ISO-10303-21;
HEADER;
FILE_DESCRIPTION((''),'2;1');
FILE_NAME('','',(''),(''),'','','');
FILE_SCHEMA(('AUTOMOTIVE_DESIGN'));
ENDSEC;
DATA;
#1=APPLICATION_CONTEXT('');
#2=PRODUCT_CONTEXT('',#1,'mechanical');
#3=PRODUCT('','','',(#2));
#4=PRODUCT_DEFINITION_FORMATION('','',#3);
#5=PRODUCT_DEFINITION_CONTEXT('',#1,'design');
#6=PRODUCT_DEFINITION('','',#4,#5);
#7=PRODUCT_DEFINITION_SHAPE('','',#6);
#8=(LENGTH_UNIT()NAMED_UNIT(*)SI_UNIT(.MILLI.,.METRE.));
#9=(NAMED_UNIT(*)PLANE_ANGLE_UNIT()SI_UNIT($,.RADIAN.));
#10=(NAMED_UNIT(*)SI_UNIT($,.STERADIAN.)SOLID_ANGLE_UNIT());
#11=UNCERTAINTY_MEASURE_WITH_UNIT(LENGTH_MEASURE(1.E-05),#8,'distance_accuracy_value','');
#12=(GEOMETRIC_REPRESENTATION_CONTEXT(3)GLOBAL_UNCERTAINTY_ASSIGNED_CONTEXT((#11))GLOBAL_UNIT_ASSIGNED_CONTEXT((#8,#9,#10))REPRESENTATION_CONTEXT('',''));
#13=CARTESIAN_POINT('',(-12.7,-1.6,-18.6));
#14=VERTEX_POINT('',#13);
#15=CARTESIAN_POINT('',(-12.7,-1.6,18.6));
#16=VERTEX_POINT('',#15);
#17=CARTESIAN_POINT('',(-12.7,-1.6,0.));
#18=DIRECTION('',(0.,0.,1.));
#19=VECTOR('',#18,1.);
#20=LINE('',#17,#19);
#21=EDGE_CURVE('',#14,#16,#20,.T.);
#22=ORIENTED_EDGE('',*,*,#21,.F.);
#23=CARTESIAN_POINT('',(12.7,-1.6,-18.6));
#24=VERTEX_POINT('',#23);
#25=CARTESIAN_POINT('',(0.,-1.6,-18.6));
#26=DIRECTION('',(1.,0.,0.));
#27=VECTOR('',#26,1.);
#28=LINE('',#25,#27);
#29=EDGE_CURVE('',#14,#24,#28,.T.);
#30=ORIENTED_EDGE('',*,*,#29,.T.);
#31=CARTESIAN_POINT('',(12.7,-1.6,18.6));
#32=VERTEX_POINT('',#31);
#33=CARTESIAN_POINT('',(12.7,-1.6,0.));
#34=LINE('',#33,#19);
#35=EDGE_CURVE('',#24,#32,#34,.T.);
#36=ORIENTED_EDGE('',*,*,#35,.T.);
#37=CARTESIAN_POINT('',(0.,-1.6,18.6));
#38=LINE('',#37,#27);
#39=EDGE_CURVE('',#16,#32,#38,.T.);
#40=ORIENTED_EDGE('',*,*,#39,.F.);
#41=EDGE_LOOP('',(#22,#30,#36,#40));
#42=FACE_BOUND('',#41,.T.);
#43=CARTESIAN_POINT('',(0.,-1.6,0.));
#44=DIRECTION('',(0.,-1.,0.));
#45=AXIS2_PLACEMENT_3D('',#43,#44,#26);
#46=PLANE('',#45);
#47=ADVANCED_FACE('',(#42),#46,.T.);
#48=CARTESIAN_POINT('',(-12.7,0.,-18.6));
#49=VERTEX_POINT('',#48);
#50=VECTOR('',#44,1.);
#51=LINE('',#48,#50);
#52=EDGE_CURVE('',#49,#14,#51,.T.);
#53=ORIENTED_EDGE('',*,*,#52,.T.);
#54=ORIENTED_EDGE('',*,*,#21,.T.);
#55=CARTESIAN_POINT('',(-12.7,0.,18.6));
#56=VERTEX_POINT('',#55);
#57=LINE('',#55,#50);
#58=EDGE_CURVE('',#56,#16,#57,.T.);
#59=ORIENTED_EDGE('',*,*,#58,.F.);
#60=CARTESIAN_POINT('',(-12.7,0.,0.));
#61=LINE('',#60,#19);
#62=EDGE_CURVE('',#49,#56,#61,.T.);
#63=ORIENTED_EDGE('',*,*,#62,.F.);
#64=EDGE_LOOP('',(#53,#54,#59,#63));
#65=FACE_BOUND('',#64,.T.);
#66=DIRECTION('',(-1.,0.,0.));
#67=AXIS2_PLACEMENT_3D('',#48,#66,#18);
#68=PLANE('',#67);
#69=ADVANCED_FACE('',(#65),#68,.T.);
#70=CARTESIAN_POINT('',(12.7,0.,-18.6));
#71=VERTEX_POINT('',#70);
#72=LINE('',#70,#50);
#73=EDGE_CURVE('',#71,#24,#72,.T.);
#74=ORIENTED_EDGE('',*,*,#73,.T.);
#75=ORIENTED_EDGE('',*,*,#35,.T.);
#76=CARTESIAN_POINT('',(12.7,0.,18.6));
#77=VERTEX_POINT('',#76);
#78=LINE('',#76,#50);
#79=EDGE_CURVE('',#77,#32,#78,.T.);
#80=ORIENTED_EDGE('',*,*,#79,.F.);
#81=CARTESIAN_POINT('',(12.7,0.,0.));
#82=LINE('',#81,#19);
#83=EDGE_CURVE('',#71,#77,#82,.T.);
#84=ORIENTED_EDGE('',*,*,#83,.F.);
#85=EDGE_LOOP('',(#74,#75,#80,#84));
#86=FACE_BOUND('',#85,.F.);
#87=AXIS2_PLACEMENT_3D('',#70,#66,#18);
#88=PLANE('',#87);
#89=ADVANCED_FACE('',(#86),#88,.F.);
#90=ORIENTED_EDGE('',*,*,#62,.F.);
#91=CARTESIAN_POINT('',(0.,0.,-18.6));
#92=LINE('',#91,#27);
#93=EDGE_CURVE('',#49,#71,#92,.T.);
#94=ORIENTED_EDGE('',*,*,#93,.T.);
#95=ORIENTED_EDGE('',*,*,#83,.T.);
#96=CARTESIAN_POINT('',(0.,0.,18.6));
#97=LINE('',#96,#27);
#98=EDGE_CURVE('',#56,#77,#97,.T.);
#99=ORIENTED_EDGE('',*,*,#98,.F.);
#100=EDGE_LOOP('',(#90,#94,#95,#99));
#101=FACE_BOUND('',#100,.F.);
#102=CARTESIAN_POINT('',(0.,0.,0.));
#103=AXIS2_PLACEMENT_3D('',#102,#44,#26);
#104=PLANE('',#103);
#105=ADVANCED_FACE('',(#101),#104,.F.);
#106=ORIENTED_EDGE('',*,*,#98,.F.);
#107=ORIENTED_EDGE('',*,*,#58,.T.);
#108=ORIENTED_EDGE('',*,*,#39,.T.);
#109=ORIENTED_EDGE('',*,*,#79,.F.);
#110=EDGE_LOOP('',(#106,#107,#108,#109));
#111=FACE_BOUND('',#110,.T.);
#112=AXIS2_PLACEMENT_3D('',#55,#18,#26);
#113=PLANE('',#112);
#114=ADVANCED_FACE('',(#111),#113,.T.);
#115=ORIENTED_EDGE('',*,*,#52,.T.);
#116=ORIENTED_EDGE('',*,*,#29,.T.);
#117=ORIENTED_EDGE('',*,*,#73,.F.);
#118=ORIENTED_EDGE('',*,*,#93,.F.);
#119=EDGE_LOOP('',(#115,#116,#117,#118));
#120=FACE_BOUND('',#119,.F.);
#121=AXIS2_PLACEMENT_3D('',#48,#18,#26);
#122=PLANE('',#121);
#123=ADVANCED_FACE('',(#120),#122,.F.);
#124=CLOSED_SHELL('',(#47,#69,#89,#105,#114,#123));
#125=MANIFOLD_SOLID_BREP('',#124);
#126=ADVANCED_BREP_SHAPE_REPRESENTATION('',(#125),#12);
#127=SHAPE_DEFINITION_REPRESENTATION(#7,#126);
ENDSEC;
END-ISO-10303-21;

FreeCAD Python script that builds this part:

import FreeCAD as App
import Part
import Sketcher
Q = App.Units.Quantity


def add_polygon(sketch, points):
    """Adds a closed chain of lines whose ends are joined by coincident constraints."""
    first, n = sketch.GeometryCount, len(points)
    for a, b in zip(points, points[1:] + points[:1]):
        sketch.addGeometry(Part.LineSegment(App.Vector(*a, 0), App.Vector(*b, 0)), False)
    for i in range(n):
        sketch.addConstraint(Sketcher.Constraint("Coincident", first + i, 2, first + (i + 1) % n, 1))

doc = App.newDocument("Part")
params = doc.addObject("Spreadsheet::Sheet", "Params")
for row, (alias, value) in enumerate([
    ("sketch1_width", "25.4 mm"),
    ("sketch1_height", "37.2 mm"),
    ("pad1_length", "1.6 mm"),
], start=1):
    params.set(f"A{row}", alias)
    params.set(f"B{row}", "=" + value)
    params.setAlias(f"B{row}", alias)

body = doc.addObject("PartDesign::Body", "Body")

# Sketch on XZ plane
sketch1 = doc.addObject("Sketcher::SketchObject", "Sketch")
body.addObject(sketch1)
sketch1.AttachmentSupport = (doc.XZ_Plane, [""])
sketch1.MapMode = "FlatFace"
add_polygon(sketch1, [(-13, 19), (-13, -19), (13, -19), (13, 19)])  # lines 0-3
sketch1.addConstraint(Sketcher.Constraint("Vertical", 0))
sketch1.addConstraint(Sketcher.Constraint("Horizontal", 1))
sketch1.addConstraint(Sketcher.Constraint("Vertical", 2))
sketch1.addConstraint(Sketcher.Constraint("Horizontal", 3))
sketch1.addConstraint(Sketcher.Constraint("Symmetric", 0, 2, 2, 2, -1, 1))
sketch1.addConstraint(Sketcher.Constraint("DistanceX", 1, 1, 1, 2, Q("25.4 mm")))
sketch1.addConstraint(Sketcher.Constraint("DistanceY", 0, 2, 0, 1, Q("37.2 mm")))
sketch1.setExpression("Constraints[9]", "Params.sketch1_width")
sketch1.setExpression("Constraints[10]", "Params.sketch1_height")
pad1 = doc.addObject("PartDesign::Pad", "Pad")
body.addObject(pad1)
pad1.Profile = sketch1
pad1.setExpression("Length", "Params.pad1_length")

doc.recompute()
